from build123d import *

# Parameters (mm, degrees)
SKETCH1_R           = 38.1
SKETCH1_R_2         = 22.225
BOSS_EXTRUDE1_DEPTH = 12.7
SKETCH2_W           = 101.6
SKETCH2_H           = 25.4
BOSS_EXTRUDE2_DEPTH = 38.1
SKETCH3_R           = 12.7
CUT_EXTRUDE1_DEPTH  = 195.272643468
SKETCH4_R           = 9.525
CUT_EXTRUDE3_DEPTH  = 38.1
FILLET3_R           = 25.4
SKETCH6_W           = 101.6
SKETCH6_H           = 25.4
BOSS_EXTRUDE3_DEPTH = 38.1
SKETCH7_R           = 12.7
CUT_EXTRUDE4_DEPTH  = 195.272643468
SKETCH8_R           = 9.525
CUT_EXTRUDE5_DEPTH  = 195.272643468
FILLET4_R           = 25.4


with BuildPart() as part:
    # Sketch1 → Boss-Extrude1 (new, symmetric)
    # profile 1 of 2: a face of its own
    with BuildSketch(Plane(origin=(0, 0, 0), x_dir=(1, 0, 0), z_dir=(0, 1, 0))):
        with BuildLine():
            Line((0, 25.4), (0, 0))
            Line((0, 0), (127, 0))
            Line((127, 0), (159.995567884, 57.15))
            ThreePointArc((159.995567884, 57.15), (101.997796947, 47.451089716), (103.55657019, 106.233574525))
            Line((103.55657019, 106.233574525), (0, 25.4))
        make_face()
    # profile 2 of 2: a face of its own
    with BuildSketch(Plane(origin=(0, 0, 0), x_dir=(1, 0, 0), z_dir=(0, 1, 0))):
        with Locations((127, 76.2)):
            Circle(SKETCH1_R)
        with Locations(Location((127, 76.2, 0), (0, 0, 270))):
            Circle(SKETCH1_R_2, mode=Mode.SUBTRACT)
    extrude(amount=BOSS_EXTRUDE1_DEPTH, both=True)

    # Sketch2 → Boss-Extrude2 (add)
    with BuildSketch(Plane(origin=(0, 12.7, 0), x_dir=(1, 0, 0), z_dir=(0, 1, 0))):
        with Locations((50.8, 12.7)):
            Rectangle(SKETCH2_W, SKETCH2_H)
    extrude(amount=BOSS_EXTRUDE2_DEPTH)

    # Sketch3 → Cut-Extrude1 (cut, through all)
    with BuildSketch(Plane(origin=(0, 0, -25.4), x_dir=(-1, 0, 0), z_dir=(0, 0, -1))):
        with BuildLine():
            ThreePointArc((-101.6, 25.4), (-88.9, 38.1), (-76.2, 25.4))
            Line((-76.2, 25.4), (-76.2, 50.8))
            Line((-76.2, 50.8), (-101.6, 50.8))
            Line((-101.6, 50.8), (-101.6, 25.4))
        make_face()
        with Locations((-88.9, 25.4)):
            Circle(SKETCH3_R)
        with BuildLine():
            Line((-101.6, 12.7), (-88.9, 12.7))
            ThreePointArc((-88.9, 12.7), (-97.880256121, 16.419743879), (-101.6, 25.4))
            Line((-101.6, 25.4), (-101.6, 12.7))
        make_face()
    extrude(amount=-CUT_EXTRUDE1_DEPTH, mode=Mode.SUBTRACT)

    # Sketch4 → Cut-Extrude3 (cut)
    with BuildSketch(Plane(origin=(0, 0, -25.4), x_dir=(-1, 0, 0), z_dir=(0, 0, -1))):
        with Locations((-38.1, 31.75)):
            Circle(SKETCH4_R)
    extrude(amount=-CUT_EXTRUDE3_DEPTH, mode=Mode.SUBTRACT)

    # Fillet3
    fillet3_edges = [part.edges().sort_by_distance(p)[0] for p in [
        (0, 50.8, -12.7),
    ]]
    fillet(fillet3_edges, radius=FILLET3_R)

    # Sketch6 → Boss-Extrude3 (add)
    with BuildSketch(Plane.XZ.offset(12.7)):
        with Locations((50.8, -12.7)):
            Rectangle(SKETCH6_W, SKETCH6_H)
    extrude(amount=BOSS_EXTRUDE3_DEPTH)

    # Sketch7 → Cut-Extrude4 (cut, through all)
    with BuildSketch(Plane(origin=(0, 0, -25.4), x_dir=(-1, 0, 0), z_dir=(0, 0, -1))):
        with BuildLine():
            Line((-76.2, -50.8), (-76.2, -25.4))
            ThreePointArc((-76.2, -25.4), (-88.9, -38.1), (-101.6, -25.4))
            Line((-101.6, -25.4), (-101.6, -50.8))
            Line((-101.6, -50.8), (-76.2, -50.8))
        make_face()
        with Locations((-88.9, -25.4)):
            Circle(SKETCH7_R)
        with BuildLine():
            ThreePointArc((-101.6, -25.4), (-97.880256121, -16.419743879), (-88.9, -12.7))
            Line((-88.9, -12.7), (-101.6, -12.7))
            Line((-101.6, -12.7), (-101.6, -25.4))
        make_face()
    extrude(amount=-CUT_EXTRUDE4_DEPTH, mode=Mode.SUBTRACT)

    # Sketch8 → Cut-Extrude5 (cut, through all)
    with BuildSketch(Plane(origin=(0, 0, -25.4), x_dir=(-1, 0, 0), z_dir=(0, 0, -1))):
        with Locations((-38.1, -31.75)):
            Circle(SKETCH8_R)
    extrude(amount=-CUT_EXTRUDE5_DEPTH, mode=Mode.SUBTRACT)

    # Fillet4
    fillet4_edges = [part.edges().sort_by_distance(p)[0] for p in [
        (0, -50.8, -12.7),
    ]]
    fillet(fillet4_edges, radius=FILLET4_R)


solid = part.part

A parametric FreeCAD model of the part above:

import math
import FreeCAD as App
import Part
import Sketcher
Q = App.Units.Quantity


def edges_at(feature, points):
    """Names of the edges that pass closest to the given points."""
    edges = feature.Shape.Edges
    near = lambda p: min(range(len(edges)), key=lambda i: edges[i].distToShape(Part.Vertex(*p))[0])
    return sorted({f"Edge{near(p) + 1}" for p in points})


def add_polygon(sketch, points):
    """Adds a closed chain of lines whose ends are joined by coincident constraints."""
    first, n = sketch.GeometryCount, len(points)
    for a, b in zip(points, points[1:] + points[:1]):
        sketch.addGeometry(Part.LineSegment(App.Vector(*a, 0), App.Vector(*b, 0)), False)
    for i in range(n):
        sketch.addConstraint(Sketcher.Constraint("Coincident", first + i, 2, first + (i + 1) % n, 1))

doc = App.newDocument("Part")
body = doc.addObject("PartDesign::Body", "Body")

sketch1 = body.newObject("Sketcher::SketchObject", "Sketch")
sketch1.AttachmentSupport = (doc.getObject("XZ_Plane"), [""])
sketch1.MapMode = "FlatFace"
sketch1.addGeometry(Part.LineSegment(App.Vector(0, -25, 0), App.Vector(0, 0, 0)), False)
sketch1.addGeometry(Part.LineSegment(App.Vector(0, 0, 0), App.Vector(127, 0, 0)), False)
sketch1.addGeometry(Part.LineSegment(App.Vector(127, 0, 0), App.Vector(160, -57, 0)), False)
sketch1.addGeometry(Part.ArcOfCircle(Part.Circle(App.Vector(127, -76, 0), App.Vector(0, 0, 1), 38), math.radians(-128), math.radians(30)), False)
sketch1.addGeometry(Part.LineSegment(App.Vector(104, -106, 0), App.Vector(0, -25, 0)), False)
sketch1.addGeometry(Part.Circle(App.Vector(127, -76, 0), App.Vector(0, 0, 1), 22), False)
sketch1.addConstraint(Sketcher.Constraint("Coincident", 0, 2, 1, 1))
sketch1.addConstraint(Sketcher.Constraint("Coincident", 1, 2, 2, 1))
sketch1.addConstraint(Sketcher.Constraint("Tangent", 2, 2, 3, 2))
sketch1.addConstraint(Sketcher.Constraint("Tangent", 3, 1, 4, 1))
sketch1.addConstraint(Sketcher.Constraint("Coincident", 4, 2, 0, 1))
sketch1.addConstraint(Sketcher.Constraint("Vertical", 0))
sketch1.addConstraint(Sketcher.Constraint("Horizontal", 1))
sketch1.addConstraint(Sketcher.Constraint("Coincident", 0, 2, -1, 1))
sketch1.addConstraint(Sketcher.Constraint("Coincident", 5, 3, 3, 3))
sketch1.addConstraint(Sketcher.Constraint("Vertical", 5, 3, 1, 2))
sketch1.addConstraint(Sketcher.Constraint("Radius", 3, Q("1.5 in")))
sketch1.addConstraint(Sketcher.Constraint("Diameter", 5, Q("1.75 in")))
sketch1.addConstraint(Sketcher.Constraint("DistanceX", 1, 1, 1, 2, Q("5 in")))
sketch1.addConstraint(Sketcher.Constraint("DistanceY", 0, 1, 0, 2, Q("1 in")))
sketch1.addConstraint(Sketcher.Constraint("DistanceY", 3, 3, -1, 1, Q("3 in")))
pad1 = body.newObject("PartDesign::Pad", "Pad")
pad1.Profile = sketch1
pad1.Length = Q("1 in")
pad1.Midplane = True

sketch2 = body.newObject("Sketcher::SketchObject", "Sketch001")
sketch2.AttachmentSupport = (doc.getObject("XZ_Plane"), [""])
sketch2.MapMode = "FlatFace"
sketch2.AttachmentOffset = App.Placement(App.Vector(0, 0, -0.5 * 25.4), App.Rotation())
add_polygon(sketch2, [(0, -25), (0, 0), (102, 0), (102, -25)])
sketch2.addConstraint(Sketcher.Constraint("Vertical", 0))
sketch2.addConstraint(Sketcher.Constraint("Horizontal", 1))
sketch2.addConstraint(Sketcher.Constraint("Vertical", 2))
sketch2.addConstraint(Sketcher.Constraint("Horizontal", 3))
sketch2.addConstraint(Sketcher.Constraint("Coincident", 0, 2, -1, 1))
sketch2.addConstraint(Sketcher.Constraint("DistanceX", 1, 1, 1, 2, Q("4 in")))
sketch2.addConstraint(Sketcher.Constraint("DistanceY", 0, 1, 0, 2, Q("1 in")))
pad2 = body.newObject("PartDesign::Pad", "Pad001")
pad2.Profile = sketch2
pad2.Length = Q("1.5 in")
pad2.Reversed = True

sketch3 = body.newObject("Sketcher::SketchObject", "Sketch002")
sketch3.AttachmentSupport = (doc.getObject("XY_Plane"), [""])
sketch3.MapMode = "FlatFace"
sketch3.AttachmentOffset = App.Placement(App.Vector(0, 0, -1 * 25.4), App.Rotation())
sketch3.addGeometry(Part.LineSegment(App.Vector(76, 25, 0), App.Vector(76, 51, 0)), False)
sketch3.addGeometry(Part.LineSegment(App.Vector(76, 51, 0), App.Vector(102, 51, 0)), False)
sketch3.addGeometry(Part.LineSegment(App.Vector(102, 51, 0), App.Vector(102, 13, 0)), False)
sketch3.addGeometry(Part.LineSegment(App.Vector(102, 13, 0), App.Vector(89, 13, 0)), False)
sketch3.addGeometry(Part.ArcOfCircle(Part.Circle(App.Vector(89, 25, 0), App.Vector(0, 0, 1), 13), math.radians(180), math.radians(270)), False)
sketch3.addConstraint(Sketcher.Constraint("Coincident", 0, 2, 1, 1))
sketch3.addConstraint(Sketcher.Constraint("Coincident", 1, 2, 2, 1))
sketch3.addConstraint(Sketcher.Constraint("Coincident", 2, 2, 3, 1))
sketch3.addConstraint(Sketcher.Constraint("Tangent", 3, 2, 4, 2))
sketch3.addConstraint(Sketcher.Constraint("Tangent", 4, 1, 0, 1))
sketch3.addConstraint(Sketcher.Constraint("Vertical", 0))
sketch3.addConstraint(Sketcher.Constraint("Horizontal", 1))
sketch3.addConstraint(Sketcher.Constraint("Vertical", 2))
sketch3.addConstraint(Sketcher.Constraint("Horizontal", 3))
sketch3.addConstraint(Sketcher.Constraint("Equal", 1, 0))
sketch3.addConstraint(Sketcher.Constraint("Radius", 4, Q("0.5 in")))
sketch3.addConstraint(Sketcher.Constraint("DistanceX", 1, 1, 1, 2, Q("1 in")))
sketch3.addConstraint(Sketcher.Constraint("DistanceY", -1, 1, 4, 3, Q("1 in")))
sketch3.addConstraint(Sketcher.Constraint("DistanceX", -1, 1, 0, 2, Q("3 in")))
pocket1 = body.newObject("PartDesign::Pocket", "Pocket")
pocket1.Profile = sketch3
pocket1.Type = "ThroughAll"
pocket1.Reversed = True

sketch4 = body.newObject("Sketcher::SketchObject", "Sketch003")
sketch4.AttachmentSupport = (doc.getObject("XY_Plane"), [""])
sketch4.MapMode = "FlatFace"
sketch4.AttachmentOffset = App.Placement(App.Vector(0, 0, -1 * 25.4), App.Rotation())
sketch4.addGeometry(Part.Circle(App.Vector(38, 32, 0), App.Vector(0, 0, 1), 10), False)
sketch4.addConstraint(Sketcher.Constraint("Diameter", 0, Q("0.75 in")))
sketch4.addConstraint(Sketcher.Constraint("DistanceX", -1, 1, 0, 3, Q("1.5 in")))
sketch4.addConstraint(Sketcher.Constraint("DistanceY", -1, 1, 0, 3, Q("1.25 in")))
pocket2 = body.newObject("PartDesign::Pocket", "Pocket001")
pocket2.Profile = sketch4
pocket2.Length = Q("1.5 in")
pocket2.Reversed = True
doc.recompute()

fillet = body.newObject("PartDesign::Fillet", "Fillet")
fillet.Base = (pocket2, edges_at(pocket2, [(0, 50.8, -12.7)]))
fillet.Radius = Q("1 in")

sketch5 = body.newObject("Sketcher::SketchObject", "Sketch004")
sketch5.AttachmentSupport = (doc.getObject("XZ_Plane"), [""])
sketch5.MapMode = "FlatFace"
sketch5.AttachmentOffset = App.Placement(App.Vector(0, 0, 0.5 * 25.4), App.Rotation())
add_polygon(sketch5, [(0, 0), (0, -25), (102, -25), (102, 0)])
sketch5.addConstraint(Sketcher.Constraint("Vertical", 0))
sketch5.addConstraint(Sketcher.Constraint("Horizontal", 1))
sketch5.addConstraint(Sketcher.Constraint("Vertical", 2))
sketch5.addConstraint(Sketcher.Constraint("Horizontal", 3))
sketch5.addConstraint(Sketcher.Constraint("Coincident", 3, 2, -1, 1))
sketch5.addConstraint(Sketcher.Constraint("DistanceX", 1, 1, 1, 2, Q("4 in")))
sketch5.addConstraint(Sketcher.Constraint("DistanceY", 0, 2, 0, 1, Q("1 in")))
pad3 = body.newObject("PartDesign::Pad", "Pad002")
pad3.Profile = sketch5
pad3.Length = Q("1.5 in")

sketch6 = body.newObject("Sketcher::SketchObject", "Sketch005")
sketch6.AttachmentSupport = (doc.getObject("XY_Plane"), [""])
sketch6.MapMode = "FlatFace"
sketch6.AttachmentOffset = App.Placement(App.Vector(0, 0, -1 * 25.4), App.Rotation())
sketch6.addGeometry(Part.LineSegment(App.Vector(76, -51, 0), App.Vector(76, -25, 0)), False)
sketch6.addGeometry(Part.ArcOfCircle(Part.Circle(App.Vector(89, -25, 0), App.Vector(0, 0, 1), 13), math.radians(90), math.radians(180)), False)
sketch6.addGeometry(Part.LineSegment(App.Vector(89, -13, 0), App.Vector(102, -13, 0)), False)
sketch6.addGeometry(Part.LineSegment(App.Vector(102, -13, 0), App.Vector(102, -51, 0)), False)
sketch6.addGeometry(Part.LineSegment(App.Vector(102, -51, 0), App.Vector(76, -51, 0)), False)
sketch6.addConstraint(Sketcher.Constraint("Tangent", 0, 2, 1, 2))
sketch6.addConstraint(Sketcher.Constraint("Tangent", 1, 1, 2, 1))
sketch6.addConstraint(Sketcher.Constraint("Coincident", 2, 2, 3, 1))
sketch6.addConstraint(Sketcher.Constraint("Coincident", 3, 2, 4, 1))
sketch6.addConstraint(Sketcher.Constraint("Coincident", 4, 2, 0, 1))
sketch6.addConstraint(Sketcher.Constraint("Vertical", 0))
sketch6.addConstraint(Sketcher.Constraint("Horizontal", 2))
sketch6.addConstraint(Sketcher.Constraint("Vertical", 3))
sketch6.addConstraint(Sketcher.Constraint("Horizontal", 4))
sketch6.addConstraint(Sketcher.Constraint("Equal", 4, 0))
sketch6.addConstraint(Sketcher.Constraint("Radius", 1, Q("0.5 in")))
sketch6.addConstraint(Sketcher.Constraint("DistanceX", 4, 2, 4, 1, Q("1 in")))
sketch6.addConstraint(Sketcher.Constraint("DistanceY", 1, 3, -1, 1, Q("1 in")))
sketch6.addConstraint(Sketcher.Constraint("DistanceX", -1, 1, 0, 2, Q("3 in")))
pocket3 = body.newObject("PartDesign::Pocket", "Pocket002")
pocket3.Profile = sketch6
pocket3.Type = "ThroughAll"
pocket3.Reversed = True

sketch7 = body.newObject("Sketcher::SketchObject", "Sketch006")
sketch7.AttachmentSupport = (doc.getObject("XY_Plane"), [""])
sketch7.MapMode = "FlatFace"
sketch7.AttachmentOffset = App.Placement(App.Vector(0, 0, -1 * 25.4), App.Rotation())
sketch7.addGeometry(Part.Circle(App.Vector(38, -32, 0), App.Vector(0, 0, 1), 10), False)
sketch7.addConstraint(Sketcher.Constraint("Diameter", 0, Q("0.75 in")))
sketch7.addConstraint(Sketcher.Constraint("DistanceX", -1, 1, 0, 3, Q("1.5 in")))
sketch7.addConstraint(Sketcher.Constraint("DistanceY", 0, 3, -1, 1, Q("1.25 in")))
pocket4 = body.newObject("PartDesign::Pocket", "Pocket003")
pocket4.Profile = sketch7
pocket4.Type = "ThroughAll"
pocket4.Reversed = True
doc.recompute()

fillet2 = body.newObject("PartDesign::Fillet", "Fillet001")
fillet2.Base = (pocket4, edges_at(pocket4, [(0, -50.8, -12.7)]))
fillet2.Radius = Q("1 in")

doc.recompute()
